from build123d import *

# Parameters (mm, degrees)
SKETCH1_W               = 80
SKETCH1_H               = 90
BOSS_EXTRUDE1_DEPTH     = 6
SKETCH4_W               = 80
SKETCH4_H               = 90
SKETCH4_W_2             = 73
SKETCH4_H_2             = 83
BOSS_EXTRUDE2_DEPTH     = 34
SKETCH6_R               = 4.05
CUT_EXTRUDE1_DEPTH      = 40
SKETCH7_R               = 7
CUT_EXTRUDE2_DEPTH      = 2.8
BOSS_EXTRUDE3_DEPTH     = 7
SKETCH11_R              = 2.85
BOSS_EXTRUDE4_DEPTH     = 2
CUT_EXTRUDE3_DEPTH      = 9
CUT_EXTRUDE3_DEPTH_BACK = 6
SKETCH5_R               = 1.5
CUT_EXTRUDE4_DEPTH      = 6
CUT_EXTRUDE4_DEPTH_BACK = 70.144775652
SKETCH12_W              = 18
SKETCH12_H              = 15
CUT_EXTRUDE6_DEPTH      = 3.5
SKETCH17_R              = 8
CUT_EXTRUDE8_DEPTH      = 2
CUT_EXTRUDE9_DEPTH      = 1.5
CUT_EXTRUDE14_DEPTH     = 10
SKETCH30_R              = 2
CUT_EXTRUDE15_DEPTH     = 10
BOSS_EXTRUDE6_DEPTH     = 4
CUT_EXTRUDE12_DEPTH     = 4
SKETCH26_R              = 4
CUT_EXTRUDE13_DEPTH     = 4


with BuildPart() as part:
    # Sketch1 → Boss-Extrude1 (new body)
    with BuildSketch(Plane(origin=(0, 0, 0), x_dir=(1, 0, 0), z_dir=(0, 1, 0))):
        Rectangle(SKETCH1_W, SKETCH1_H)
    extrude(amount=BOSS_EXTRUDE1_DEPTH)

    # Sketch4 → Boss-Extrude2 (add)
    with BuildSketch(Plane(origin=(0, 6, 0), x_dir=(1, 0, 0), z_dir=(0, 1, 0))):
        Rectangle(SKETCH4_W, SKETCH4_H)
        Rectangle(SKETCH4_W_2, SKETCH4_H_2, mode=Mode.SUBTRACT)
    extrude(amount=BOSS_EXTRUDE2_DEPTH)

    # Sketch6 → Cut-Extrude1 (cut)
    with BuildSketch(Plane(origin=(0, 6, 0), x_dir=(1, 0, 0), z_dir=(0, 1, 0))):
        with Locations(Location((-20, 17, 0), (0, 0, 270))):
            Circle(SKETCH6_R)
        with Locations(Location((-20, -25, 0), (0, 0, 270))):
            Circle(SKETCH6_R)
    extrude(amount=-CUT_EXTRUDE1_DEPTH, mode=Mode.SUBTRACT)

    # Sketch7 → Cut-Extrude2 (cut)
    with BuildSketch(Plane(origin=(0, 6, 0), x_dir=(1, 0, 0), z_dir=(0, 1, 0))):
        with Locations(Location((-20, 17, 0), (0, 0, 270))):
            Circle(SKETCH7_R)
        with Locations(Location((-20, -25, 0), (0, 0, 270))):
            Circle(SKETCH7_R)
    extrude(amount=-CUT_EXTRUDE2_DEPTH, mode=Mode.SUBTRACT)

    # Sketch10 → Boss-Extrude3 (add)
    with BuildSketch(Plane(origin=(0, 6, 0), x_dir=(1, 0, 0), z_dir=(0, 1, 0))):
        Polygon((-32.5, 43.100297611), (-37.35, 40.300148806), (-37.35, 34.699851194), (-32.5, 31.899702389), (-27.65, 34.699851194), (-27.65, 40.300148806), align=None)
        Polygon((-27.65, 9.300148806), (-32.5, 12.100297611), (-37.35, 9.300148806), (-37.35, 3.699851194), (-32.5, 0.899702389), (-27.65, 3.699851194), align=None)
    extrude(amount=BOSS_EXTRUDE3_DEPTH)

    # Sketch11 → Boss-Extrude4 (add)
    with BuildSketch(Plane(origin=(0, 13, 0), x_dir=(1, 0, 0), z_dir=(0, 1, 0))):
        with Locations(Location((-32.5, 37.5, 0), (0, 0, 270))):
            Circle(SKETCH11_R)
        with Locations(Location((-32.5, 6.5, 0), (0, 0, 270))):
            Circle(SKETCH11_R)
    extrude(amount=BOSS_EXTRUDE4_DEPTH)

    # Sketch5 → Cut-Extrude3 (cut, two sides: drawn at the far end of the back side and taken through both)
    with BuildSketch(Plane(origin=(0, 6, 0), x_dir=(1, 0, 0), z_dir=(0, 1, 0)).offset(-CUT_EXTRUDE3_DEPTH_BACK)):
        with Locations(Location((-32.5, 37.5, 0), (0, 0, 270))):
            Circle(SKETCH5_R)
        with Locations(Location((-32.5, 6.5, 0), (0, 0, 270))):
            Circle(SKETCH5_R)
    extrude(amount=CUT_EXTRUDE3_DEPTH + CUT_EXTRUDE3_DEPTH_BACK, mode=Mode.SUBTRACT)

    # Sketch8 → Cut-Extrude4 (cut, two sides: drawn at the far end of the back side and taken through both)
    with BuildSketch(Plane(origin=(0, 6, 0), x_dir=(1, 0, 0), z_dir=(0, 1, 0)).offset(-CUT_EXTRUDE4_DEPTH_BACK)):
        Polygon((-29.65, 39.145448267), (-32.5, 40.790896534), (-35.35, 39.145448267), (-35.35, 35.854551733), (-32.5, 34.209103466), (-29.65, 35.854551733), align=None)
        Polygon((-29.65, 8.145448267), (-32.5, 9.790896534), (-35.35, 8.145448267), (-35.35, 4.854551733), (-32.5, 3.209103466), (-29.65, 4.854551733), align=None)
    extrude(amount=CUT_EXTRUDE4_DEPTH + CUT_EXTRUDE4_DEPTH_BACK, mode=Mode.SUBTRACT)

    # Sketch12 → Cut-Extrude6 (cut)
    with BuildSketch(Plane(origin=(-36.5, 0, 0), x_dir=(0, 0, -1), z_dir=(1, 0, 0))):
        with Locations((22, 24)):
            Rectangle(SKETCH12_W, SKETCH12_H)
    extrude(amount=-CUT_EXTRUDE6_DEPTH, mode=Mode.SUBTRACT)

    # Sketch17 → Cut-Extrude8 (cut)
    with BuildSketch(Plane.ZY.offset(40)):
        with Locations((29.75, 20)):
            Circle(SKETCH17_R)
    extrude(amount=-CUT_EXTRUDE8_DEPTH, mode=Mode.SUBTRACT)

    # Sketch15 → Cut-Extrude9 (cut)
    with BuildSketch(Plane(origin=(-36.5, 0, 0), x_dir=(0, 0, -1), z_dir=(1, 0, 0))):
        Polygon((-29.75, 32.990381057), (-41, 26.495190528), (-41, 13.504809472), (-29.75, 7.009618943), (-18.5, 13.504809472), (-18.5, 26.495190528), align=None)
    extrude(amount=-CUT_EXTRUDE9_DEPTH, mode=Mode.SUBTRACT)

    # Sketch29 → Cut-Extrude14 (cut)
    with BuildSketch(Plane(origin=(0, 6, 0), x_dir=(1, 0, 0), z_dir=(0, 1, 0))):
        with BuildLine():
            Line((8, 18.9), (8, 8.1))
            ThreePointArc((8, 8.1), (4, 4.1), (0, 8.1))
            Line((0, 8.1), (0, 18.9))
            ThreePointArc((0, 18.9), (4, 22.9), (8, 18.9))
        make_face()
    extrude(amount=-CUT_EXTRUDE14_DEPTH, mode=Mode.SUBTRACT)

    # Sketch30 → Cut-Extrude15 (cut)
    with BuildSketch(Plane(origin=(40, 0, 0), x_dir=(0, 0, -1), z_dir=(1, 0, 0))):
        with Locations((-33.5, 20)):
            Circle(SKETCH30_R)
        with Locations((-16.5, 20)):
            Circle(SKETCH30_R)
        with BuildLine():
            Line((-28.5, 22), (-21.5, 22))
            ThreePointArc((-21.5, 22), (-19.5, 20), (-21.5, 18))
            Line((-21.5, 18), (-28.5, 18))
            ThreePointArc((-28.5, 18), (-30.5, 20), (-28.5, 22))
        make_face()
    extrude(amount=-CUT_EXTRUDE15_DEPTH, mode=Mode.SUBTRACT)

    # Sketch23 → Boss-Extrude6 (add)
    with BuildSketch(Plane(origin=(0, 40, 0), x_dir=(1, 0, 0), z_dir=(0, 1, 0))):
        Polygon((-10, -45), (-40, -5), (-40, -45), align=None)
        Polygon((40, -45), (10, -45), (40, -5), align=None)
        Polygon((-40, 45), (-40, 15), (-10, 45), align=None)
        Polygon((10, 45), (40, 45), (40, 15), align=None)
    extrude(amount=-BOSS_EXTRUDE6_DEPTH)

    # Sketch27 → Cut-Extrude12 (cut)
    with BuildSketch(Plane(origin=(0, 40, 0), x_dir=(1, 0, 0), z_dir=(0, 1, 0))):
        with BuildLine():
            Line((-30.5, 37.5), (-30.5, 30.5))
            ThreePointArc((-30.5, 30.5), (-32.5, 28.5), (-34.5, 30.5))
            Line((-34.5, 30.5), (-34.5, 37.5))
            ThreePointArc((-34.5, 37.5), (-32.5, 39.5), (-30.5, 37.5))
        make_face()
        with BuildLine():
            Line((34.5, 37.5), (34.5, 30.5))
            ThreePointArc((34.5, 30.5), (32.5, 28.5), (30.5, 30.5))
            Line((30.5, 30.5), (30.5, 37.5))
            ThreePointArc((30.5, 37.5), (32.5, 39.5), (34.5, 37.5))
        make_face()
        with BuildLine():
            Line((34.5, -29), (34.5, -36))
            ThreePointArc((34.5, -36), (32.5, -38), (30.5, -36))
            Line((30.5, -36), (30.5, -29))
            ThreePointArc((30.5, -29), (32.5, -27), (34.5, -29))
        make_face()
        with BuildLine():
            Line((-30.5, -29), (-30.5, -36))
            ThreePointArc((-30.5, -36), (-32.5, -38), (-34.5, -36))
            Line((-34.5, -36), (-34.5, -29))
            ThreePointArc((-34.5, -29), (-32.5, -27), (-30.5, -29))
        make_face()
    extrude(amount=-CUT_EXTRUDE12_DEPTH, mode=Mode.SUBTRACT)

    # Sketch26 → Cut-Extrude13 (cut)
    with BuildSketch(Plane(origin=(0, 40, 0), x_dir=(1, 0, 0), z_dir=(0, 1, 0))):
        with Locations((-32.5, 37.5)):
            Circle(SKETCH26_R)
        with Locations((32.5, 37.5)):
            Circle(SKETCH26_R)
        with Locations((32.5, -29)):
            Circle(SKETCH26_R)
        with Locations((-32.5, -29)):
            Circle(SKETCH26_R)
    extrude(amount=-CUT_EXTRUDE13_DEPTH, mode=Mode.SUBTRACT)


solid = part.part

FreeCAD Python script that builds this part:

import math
import FreeCAD as App
import Part
import Sketcher

V = App.Vector
Q = App.Units.Quantity

doc = App.newDocument("Part")
body = doc.addObject("PartDesign::Body", "Body")

# Sketch on XZ plane
sketch1 = body.newObject("Sketcher::SketchObject", "Sketch")
sketch1.AttachmentSupport = (doc.getObject("XZ_Plane"), [""])
sketch1.MapMode = "FlatFace"
sketch1.addGeometry(Part.LineSegment(V(-40, -45, 0), V(-40, 45, 0)), False)
sketch1.addGeometry(Part.LineSegment(V(-40, 45, 0), V(40, 45, 0)), False)
sketch1.addGeometry(Part.LineSegment(V(40, 45, 0), V(40, -45, 0)), False)
sketch1.addGeometry(Part.LineSegment(V(40, -45, 0), V(-40, -45, 0)), False)
sketch1.addConstraint(Sketcher.Constraint("Coincident", 0, 2, 1, 1))
sketch1.addConstraint(Sketcher.Constraint("Coincident", 1, 2, 2, 1))
sketch1.addConstraint(Sketcher.Constraint("Coincident", 2, 2, 3, 1))
sketch1.addConstraint(Sketcher.Constraint("Coincident", 3, 2, 0, 1))
sketch1.addConstraint(Sketcher.Constraint("Vertical", 0))
sketch1.addConstraint(Sketcher.Constraint("Horizontal", 1))
sketch1.addConstraint(Sketcher.Constraint("Vertical", 2))
sketch1.addConstraint(Sketcher.Constraint("Horizontal", 3))
sketch1.addConstraint(Sketcher.Constraint("Symmetric", 0, 2, 2, 2, -1, 1))
sketch1.addConstraint(Sketcher.Constraint("DistanceX", 1, 1, 1, 2, 80.0))
sketch1.addConstraint(Sketcher.Constraint("DistanceY", 0, 1, 0, 2, 90.0))
pad1 = body.newObject("PartDesign::Pad", "Pad")
pad1.Profile = sketch1
pad1.Length = 6
pad1.Reversed = True

# Sketch on XZ plane
sketch2 = body.newObject("Sketcher::SketchObject", "Sketch001")
sketch2.AttachmentSupport = (doc.getObject("XZ_Plane"), [""])
sketch2.MapMode = "FlatFace"
sketch2.AttachmentOffset = App.Placement(V(0, 0, -6), App.Rotation())
sketch2.addGeometry(Part.LineSegment(V(-40, -45, 0), V(-40, 45, 0)), False)
sketch2.addGeometry(Part.LineSegment(V(-40, 45, 0), V(40, 45, 0)), False)
sketch2.addGeometry(Part.LineSegment(V(40, 45, 0), V(40, -45, 0)), False)
sketch2.addGeometry(Part.LineSegment(V(40, -45, 0), V(-40, -45, 0)), False)
sketch2.addGeometry(Part.LineSegment(V(36.5, 41.5, 0), V(-36.5, 41.5, 0)), False)
sketch2.addGeometry(Part.LineSegment(V(-36.5, 41.5, 0), V(-36.5, -41.5, 0)), False)
sketch2.addGeometry(Part.LineSegment(V(-36.5, -41.5, 0), V(36.5, -41.5, 0)), False)
sketch2.addGeometry(Part.LineSegment(V(36.5, -41.5, 0), V(36.5, 41.5, 0)), False)
sketch2.addConstraint(Sketcher.Constraint("Coincident", 0, 2, 1, 1))
sketch2.addConstraint(Sketcher.Constraint("Coincident", 1, 2, 2, 1))
sketch2.addConstraint(Sketcher.Constraint("Coincident", 2, 2, 3, 1))
sketch2.addConstraint(Sketcher.Constraint("Coincident", 3, 2, 0, 1))
sketch2.addConstraint(Sketcher.Constraint("Coincident", 4, 2, 5, 1))
sketch2.addConstraint(Sketcher.Constraint("Coincident", 5, 2, 6, 1))
sketch2.addConstraint(Sketcher.Constraint("Coincident", 6, 2, 7, 1))
sketch2.addConstraint(Sketcher.Constraint("Coincident", 7, 2, 4, 1))
sketch2.addConstraint(Sketcher.Constraint("Vertical", 0))
sketch2.addConstraint(Sketcher.Constraint("Horizontal", 1))
sketch2.addConstraint(Sketcher.Constraint("Vertical", 2))
sketch2.addConstraint(Sketcher.Constraint("Horizontal", 3))
sketch2.addConstraint(Sketcher.Constraint("Horizontal", 4))
sketch2.addConstraint(Sketcher.Constraint("Vertical", 5))
sketch2.addConstraint(Sketcher.Constraint("Horizontal", 6))
sketch2.addConstraint(Sketcher.Constraint("Vertical", 7))
sketch2.addConstraint(Sketcher.Constraint("Symmetric", 0, 2, 2, 2, -1, 1))
sketch2.addConstraint(Sketcher.Constraint("Symmetric", 4, 2, 6, 2, -1, 1))
sketch2.addConstraint(Sketcher.Constraint("DistanceX", 1, 1, 1, 2, 80.0))
sketch2.addConstraint(Sketcher.Constraint("DistanceX", 4, 2, 4, 1, 73.0))
sketch2.addConstraint(Sketcher.Constraint("DistanceY", 0, 1, 0, 2, 90.0))
sketch2.addConstraint(Sketcher.Constraint("DistanceY", 5, 2, 5, 1, 83.0))
pad2 = body.newObject("PartDesign::Pad", "Pad001")
pad2.Profile = sketch2
pad2.Length = 34
pad2.Reversed = True

# Sketch on XZ plane
sketch3 = body.newObject("Sketcher::SketchObject", "Sketch002")
sketch3.AttachmentSupport = (doc.getObject("XZ_Plane"), [""])
sketch3.MapMode = "FlatFace"
sketch3.AttachmentOffset = App.Placement(V(0, 0, -6), App.Rotation())
sketch3.addGeometry(Part.Circle(V(-20, -17, 0), V(0, 0, 1), 4.05), False)
sketch3.addGeometry(Part.Circle(V(-20, 25, 0), V(0, 0, 1), 4.05), False)
sketch3.addConstraint(Sketcher.Constraint("Equal", 0, 1))
sketch3.addConstraint(Sketcher.Constraint("Vertical", 0, 3, 1, 3))
sketch3.addConstraint(Sketcher.Constraint("Diameter", 0, 8.1))
sketch3.addConstraint(Sketcher.Constraint("DistanceX", 0, 3, -1, 1, 20.0))
sketch3.addConstraint(Sketcher.Constraint("DistanceY", 0, 3, -1, 1, 17.0))
sketch3.addConstraint(Sketcher.Constraint("DistanceY", -1, 1, 1, 3, 25.0))
pocket1 = body.newObject("PartDesign::Pocket", "Pocket")
pocket1.Profile = sketch3
pocket1.Length = 40
pocket1.Reversed = True

# Sketch on XZ plane
sketch4 = body.newObject("Sketcher::SketchObject", "Sketch003")
sketch4.AttachmentSupport = (doc.getObject("XZ_Plane"), [""])
sketch4.MapMode = "FlatFace"
sketch4.AttachmentOffset = App.Placement(V(0, 0, -6), App.Rotation())
sketch4.addGeometry(Part.Circle(V(-20, -17, 0), V(0, 0, 1), 7), False)
sketch4.addGeometry(Part.Circle(V(-20, 25, 0), V(0, 0, 1), 7), False)
sketch4.addConstraint(Sketcher.Constraint("Equal", 0, 1))
sketch4.addConstraint(Sketcher.Constraint("Vertical", 0, 3, 1, 3))
sketch4.addConstraint(Sketcher.Constraint("Diameter", 0, 14.0))
sketch4.addConstraint(Sketcher.Constraint("DistanceX", 0, 3, -1, 1, 20.0))
sketch4.addConstraint(Sketcher.Constraint("DistanceY", 0, 3, -1, 1, 17.0))
sketch4.addConstraint(Sketcher.Constraint("DistanceY", -1, 1, 1, 3, 25.0))
pocket2 = body.newObject("PartDesign::Pocket", "Pocket001")
pocket2.Profile = sketch4
pocket2.Length = 2.8
pocket2.Reversed = True

# Sketch on XZ plane
sketch5 = body.newObject("Sketcher::SketchObject", "Sketch004")
sketch5.AttachmentSupport = (doc.getObject("XZ_Plane"), [""])
sketch5.MapMode = "FlatFace"
sketch5.AttachmentOffset = App.Placement(V(0, 0, -6), App.Rotation())
sketch5.addGeometry(Part.LineSegment(V(-32.5, -43.100298, 0), V(-37.35, -40.300149, 0)), False)
sketch5.addGeometry(Part.LineSegment(V(-37.35, -40.300149, 0), V(-37.35, -34.699851, 0)), False)
sketch5.addGeometry(Part.LineSegment(V(-37.35, -34.699851, 0), V(-32.5, -31.899702, 0)), False)
sketch5.addGeometry(Part.LineSegment(V(-32.5, -31.899702, 0), V(-27.65, -34.699851, 0)), False)
sketch5.addGeometry(Part.LineSegment(V(-27.65, -34.699851, 0), V(-27.65, -40.300149, 0)), False)
sketch5.addGeometry(Part.LineSegment(V(-27.65, -40.300149, 0), V(-32.5, -43.100298, 0)), False)
sketch5.addGeometry(Part.LineSegment(V(-27.65, -9.300149, 0), V(-32.5, -12.100298, 0)), False)
sketch5.addGeometry(Part.LineSegment(V(-32.5, -12.100298, 0), V(-37.35, -9.300149, 0)), False)
sketch5.addGeometry(Part.LineSegment(V(-37.35, -9.300149, 0), V(-37.35, -3.699851, 0)), False)
sketch5.addGeometry(Part.LineSegment(V(-37.35, -3.699851, 0), V(-32.5, -0.899702, 0)), False)
sketch5.addGeometry(Part.LineSegment(V(-32.5, -0.899702, 0), V(-27.65, -3.699851, 0)), False)
sketch5.addGeometry(Part.LineSegment(V(-27.65, -3.699851, 0), V(-27.65, -9.300149, 0)), False)
sketch5.addConstraint(Sketcher.Constraint("Coincident", 0, 2, 1, 1))
sketch5.addConstraint(Sketcher.Constraint("Coincident", 1, 2, 2, 1))
sketch5.addConstraint(Sketcher.Constraint("Coincident", 2, 2, 3, 1))
sketch5.addConstraint(Sketcher.Constraint("Coincident", 3, 2, 4, 1))
sketch5.addConstraint(Sketcher.Constraint("Coincident", 4, 2, 5, 1))
sketch5.addConstraint(Sketcher.Constraint("Coincident", 5, 2, 0, 1))
sketch5.addConstraint(Sketcher.Constraint("Coincident", 6, 2, 7, 1))
sketch5.addConstraint(Sketcher.Constraint("Coincident", 7, 2, 8, 1))
sketch5.addConstraint(Sketcher.Constraint("Coincident", 8, 2, 9, 1))
sketch5.addConstraint(Sketcher.Constraint("Coincident", 9, 2, 10, 1))
sketch5.addConstraint(Sketcher.Constraint("Coincident", 10, 2, 11, 1))
sketch5.addConstraint(Sketcher.Constraint("Coincident", 11, 2, 6, 1))
sketch5.addConstraint(Sketcher.Constraint("Vertical", 1))
sketch5.addConstraint(Sketcher.Constraint("Vertical", 4))
sketch5.addConstraint(Sketcher.Constraint("Vertical", 8))
sketch5.addConstraint(Sketcher.Constraint("Vertical", 11))
sketch5.addConstraint(Sketcher.Constraint("Parallel", 0, 3))
sketch5.addConstraint(Sketcher.Constraint("Parallel", 2, 5))
sketch5.addConstraint(Sketcher.Constraint("Parallel", 5, 6))
sketch5.addConstraint(Sketcher.Constraint("Parallel", 3, 7))
sketch5.addConstraint(Sketcher.Constraint("Parallel", 6, 9))
sketch5.addConstraint(Sketcher.Constraint("Parallel", 7, 10))
sketch5.addConstraint(Sketcher.Constraint("Horizontal", 1, 2, 3, 2))
sketch5.addConstraint(Sketcher.Constraint("Horizontal", 0, 2, 4, 2))
sketch5.addConstraint(Sketcher.Constraint("Horizontal", 8, 2, 10, 2))
sketch5.addConstraint(Sketcher.Constraint("Horizontal", 7, 2, 11, 2))
sketch5.addConstraint(Sketcher.Constraint("Vertical", 2, 2, 5, 2))
sketch5.addConstraint(Sketcher.Constraint("Vertical", 5, 2, 6, 2))
sketch5.addConstraint(Sketcher.Constraint("Vertical", 1, 2, 7, 2))
sketch5.addConstraint(Sketcher.Constraint("Equal", 4, 8))
sketch5.addConstraint(Sketcher.Constraint("Angle", 0, Q("150 deg")))
sketch5.addConstraint(Sketcher.Constraint("DistanceY", 0, 2, 7, 2, 31.0))
sketch5.addConstraint(Sketcher.Constraint("DistanceX", 2, 2, -1, 1, 32.5))
sketch5.addConstraint(Sketcher.Constraint("DistanceX", 1, 2, 3, 2, 9.7))
sketch5.addConstraint(Sketcher.Constraint("DistanceY", 1, 1, 1, 2, 5.600298))
sketch5.addConstraint(Sketcher.Constraint("DistanceY", 0, 2, -1, 1, 40.300149))
pad3 = body.newObject("PartDesign::Pad", "Pad002")
pad3.Profile = sketch5
pad3.Length = 7
pad3.Reversed = True

# Sketch on XZ plane
sketch6 = body.newObject("Sketcher::SketchObject", "Sketch005")
sketch6.AttachmentSupport = (doc.getObject("XZ_Plane"), [""])
sketch6.MapMode = "FlatFace"
sketch6.AttachmentOffset = App.Placement(V(0, 0, -13), App.Rotation())
sketch6.addGeometry(Part.Circle(V(-32.5, -37.5, 0), V(0, 0, 1), 2.85), False)
sketch6.addGeometry(Part.Circle(V(-32.5, -6.5, 0), V(0, 0, 1), 2.85), False)
sketch6.addConstraint(Sketcher.Constraint("Equal", 0, 1))
sketch6.addConstraint(Sketcher.Constraint("Vertical", 0, 3, 1, 3))
sketch6.addConstraint(Sketcher.Constraint("Diameter", 0, 5.7))
sketch6.addConstraint(Sketcher.Constraint("DistanceY", 0, 3, 1, 3, 31.0))
sketch6.addConstraint(Sketcher.Constraint("DistanceX", 0, 3, -1, 1, 32.5))
sketch6.addConstraint(Sketcher.Constraint("DistanceY", 0, 3, -1, 1, 37.5))
pad4 = body.newObject("PartDesign::Pad", "Pad003")
pad4.Profile = sketch6
pad4.Length = 2
pad4.Reversed = True

# Sketch on XZ plane
sketch7 = body.newObject("Sketcher::SketchObject", "Sketch006")
sketch7.AttachmentSupport = (doc.getObject("XZ_Plane"), [""])
sketch7.MapMode = "FlatFace"
sketch7.AttachmentOffset = App.Placement(V(0, 0, -6), App.Rotation())
sketch7.addGeometry(Part.Circle(V(-32.5, -37.5, 0), V(0, 0, 1), 1.5), False)
sketch7.addGeometry(Part.Circle(V(-32.5, -6.5, 0), V(0, 0, 1), 1.5), False)
sketch7.addConstraint(Sketcher.Constraint("Equal", 0, 1))
sketch7.addConstraint(Sketcher.Constraint("Vertical", 0, 3, 1, 3))
sketch7.addConstraint(Sketcher.Constraint("Diameter", 0, 3.0))
sketch7.addConstraint(Sketcher.Constraint("DistanceY", 0, 3, 1, 3, 31.0))
sketch7.addConstraint(Sketcher.Constraint("DistanceX", 0, 3, -1, 1, 32.5))
sketch7.addConstraint(Sketcher.Constraint("DistanceY", 0, 3, -1, 1, 37.5))
pocket3 = body.newObject("PartDesign::Pocket", "Pocket002")
pocket3.Profile = sketch7
pocket3.Type = "ThroughAll"
pocket3.Midplane = True

# Sketch on XZ plane
sketch8 = body.newObject("Sketcher::SketchObject", "Sketch007")
sketch8.AttachmentSupport = (doc.getObject("XZ_Plane"), [""])
sketch8.MapMode = "FlatFace"
sketch8.AttachmentOffset = App.Placement(V(0, 0, -6), App.Rotation())
sketch8.addGeometry(Part.LineSegment(V(-29.65, -39.145448, 0), V(-32.5, -40.790897, 0)), False)
sketch8.addGeometry(Part.LineSegment(V(-32.5, -40.790897, 0), V(-35.35, -39.145448, 0)), False)
sketch8.addGeometry(Part.LineSegment(V(-35.35, -39.145448, 0), V(-35.35, -35.854552, 0)), False)
sketch8.addGeometry(Part.LineSegment(V(-35.35, -35.854552, 0), V(-32.5, -34.209103, 0)), False)
sketch8.addGeometry(Part.LineSegment(V(-32.5, -34.209103, 0), V(-29.65, -35.854552, 0)), False)
sketch8.addGeometry(Part.LineSegment(V(-29.65, -35.854552, 0), V(-29.65, -39.145448, 0)), False)
sketch8.addGeometry(Part.LineSegment(V(-29.65, -8.145448, 0), V(-32.5, -9.790897, 0)), False)
sketch8.addGeometry(Part.LineSegment(V(-32.5, -9.790897, 0), V(-35.35, -8.145448, 0)), False)
sketch8.addGeometry(Part.LineSegment(V(-35.35, -8.145448, 0), V(-35.35, -4.854552, 0)), False)
sketch8.addGeometry(Part.LineSegment(V(-35.35, -4.854552, 0), V(-32.5, -3.209103, 0)), False)
sketch8.addGeometry(Part.LineSegment(V(-32.5, -3.209103, 0), V(-29.65, -4.854552, 0)), False)
sketch8.addGeometry(Part.LineSegment(V(-29.65, -4.854552, 0), V(-29.65, -8.145448, 0)), False)
sketch8.addConstraint(Sketcher.Constraint("Coincident", 0, 2, 1, 1))
sketch8.addConstraint(Sketcher.Constraint("Coincident", 1, 2, 2, 1))
sketch8.addConstraint(Sketcher.Constraint("Coincident", 2, 2, 3, 1))
sketch8.addConstraint(Sketcher.Constraint("Coincident", 3, 2, 4, 1))
sketch8.addConstraint(Sketcher.Constraint("Coincident", 4, 2, 5, 1))
sketch8.addConstraint(Sketcher.Constraint("Coincident", 5, 2, 0, 1))
sketch8.addConstraint(Sketcher.Constraint("Coincident", 6, 2, 7, 1))
sketch8.addConstraint(Sketcher.Constraint("Coincident", 7, 2, 8, 1))
sketch8.addConstraint(Sketcher.Constraint("Coincident", 8, 2, 9, 1))
sketch8.addConstraint(Sketcher.Constraint("Coincident", 9, 2, 10, 1))
sketch8.addConstraint(Sketcher.Constraint("Coincident", 10, 2, 11, 1))
sketch8.addConstraint(Sketcher.Constraint("Coincident", 11, 2, 6, 1))
sketch8.addConstraint(Sketcher.Constraint("Vertical", 2))
sketch8.addConstraint(Sketcher.Constraint("Vertical", 5))
sketch8.addConstraint(Sketcher.Constraint("Vertical", 8))
sketch8.addConstraint(Sketcher.Constraint("Vertical", 11))
sketch8.addConstraint(Sketcher.Constraint("Parallel", 0, 3))
sketch8.addConstraint(Sketcher.Constraint("Parallel", 1, 4))
sketch8.addConstraint(Sketcher.Constraint("Parallel", 3, 6))
sketch8.addConstraint(Sketcher.Constraint("Parallel", 4, 7))
sketch8.addConstraint(Sketcher.Constraint("Parallel", 6, 9))
sketch8.addConstraint(Sketcher.Constraint("Parallel", 7, 10))
sketch8.addConstraint(Sketcher.Constraint("Horizontal", 2, 2, 4, 2))
sketch8.addConstraint(Sketcher.Constraint("Horizontal", 1, 2, 5, 2))
sketch8.addConstraint(Sketcher.Constraint("Horizontal", 8, 2, 10, 2))
sketch8.addConstraint(Sketcher.Constraint("Horizontal", 7, 2, 11, 2))
sketch8.addConstraint(Sketcher.Constraint("Vertical", 0, 2, 3, 2))
sketch8.addConstraint(Sketcher.Constraint("Vertical", 3, 2, 6, 2))
sketch8.addConstraint(Sketcher.Constraint("Vertical", 2, 2, 7, 2))
sketch8.addConstraint(Sketcher.Constraint("Equal", 5, 8))
sketch8.addConstraint(Sketcher.Constraint("Angle", 0, Q("-150 deg")))
sketch8.addConstraint(Sketcher.Constraint("DistanceY", 1, 2, 7, 2, 31.0))
sketch8.addConstraint(Sketcher.Constraint("DistanceX", 0, 2, -1, 1, 32.5))
sketch8.addConstraint(Sketcher.Constraint("DistanceX", 2, 2, 4, 2, 5.7))
sketch8.addConstraint(Sketcher.Constraint("DistanceY", 2, 1, 2, 2, 3.290897))
sketch8.addConstraint(Sketcher.Constraint("DistanceY", 1, 2, -1, 1, 39.145448))
pocket4 = body.newObject("PartDesign::Pocket", "Pocket003")
pocket4.Profile = sketch8
pocket4.Type = "TwoLengths"
pocket4.Length = 6
pocket4.Length2 = 70.144776

# Sketch on YZ plane
sketch9 = body.newObject("Sketcher::SketchObject", "Sketch008")
sketch9.AttachmentSupport = (doc.getObject("YZ_Plane"), [""])
sketch9.MapMode = "FlatFace"
sketch9.AttachmentOffset = App.Placement(V(0, 0, -36.5), App.Rotation())
sketch9.addGeometry(Part.LineSegment(V(31.5, -13, 0), V(16.5, -13, 0)), False)
sketch9.addGeometry(Part.LineSegment(V(16.5, -13, 0), V(16.5, -31, 0)), False)
sketch9.addGeometry(Part.LineSegment(V(16.5, -31, 0), V(31.5, -31, 0)), False)
sketch9.addGeometry(Part.LineSegment(V(31.5, -31, 0), V(31.5, -13, 0)), False)
sketch9.addConstraint(Sketcher.Constraint("Coincident", 0, 2, 1, 1))
sketch9.addConstraint(Sketcher.Constraint("Coincident", 1, 2, 2, 1))
sketch9.addConstraint(Sketcher.Constraint("Coincident", 2, 2, 3, 1))
sketch9.addConstraint(Sketcher.Constraint("Coincident", 3, 2, 0, 1))
sketch9.addConstraint(Sketcher.Constraint("Horizontal", 0))
sketch9.addConstraint(Sketcher.Constraint("Vertical", 1))
sketch9.addConstraint(Sketcher.Constraint("Horizontal", 2))
sketch9.addConstraint(Sketcher.Constraint("Vertical", 3))
sketch9.addConstraint(Sketcher.Constraint("DistanceX", 0, 2, 0, 1, 15.0))
sketch9.addConstraint(Sketcher.Constraint("DistanceY", 1, 2, 1, 1, 18.0))
sketch9.addConstraint(Sketcher.Constraint("DistanceY", 0, 2, -1, 1, 13.0))
sketch9.addConstraint(Sketcher.Constraint("DistanceX", -1, 1, 0, 2, 16.5))
pocket5 = body.newObject("PartDesign::Pocket", "Pocket004")
pocket5.Profile = sketch9
pocket5.Length = 3.5

# Sketch on YZ plane
sketch10 = body.newObject("Sketcher::SketchObject", "Sketch009")
sketch10.AttachmentSupport = (doc.getObject("YZ_Plane"), [""])
sketch10.MapMode = "FlatFace"
sketch10.AttachmentOffset = App.Placement(V(0, 0, -40), App.Rotation())
sketch10.addGeometry(Part.Circle(V(20, 29.75, 0), V(0, 0, 1), 8), False)
sketch10.addConstraint(Sketcher.Constraint("Diameter", 0, 16.0))
sketch10.addConstraint(Sketcher.Constraint("DistanceX", -1, 1, 0, 3, 20.0))
sketch10.addConstraint(Sketcher.Constraint("DistanceY", -1, 1, 0, 3, 29.75))
pocket6 = body.newObject("PartDesign::Pocket", "Pocket005")
pocket6.Profile = sketch10
pocket6.Length = 2
pocket6.Reversed = True

# Sketch on YZ plane
sketch11 = body.newObject("Sketcher::SketchObject", "Sketch010")
sketch11.AttachmentSupport = (doc.getObject("YZ_Plane"), [""])
sketch11.MapMode = "FlatFace"
sketch11.AttachmentOffset = App.Placement(V(0, 0, -36.5), App.Rotation())
sketch11.addGeometry(Part.LineSegment(V(32.990381, 29.75, 0), V(26.495191, 41, 0)), False)
sketch11.addGeometry(Part.LineSegment(V(26.495191, 41, 0), V(13.504809, 41, 0)), False)
sketch11.addGeometry(Part.LineSegment(V(13.504809, 41, 0), V(7.009619, 29.75, 0)), False)
sketch11.addGeometry(Part.LineSegment(V(7.009619, 29.75, 0), V(13.504809, 18.5, 0)), False)
sketch11.addGeometry(Part.LineSegment(V(13.504809, 18.5, 0), V(26.495191, 18.5, 0)), False)
sketch11.addGeometry(Part.LineSegment(V(26.495191, 18.5, 0), V(32.990381, 29.75, 0)), False)
sketch11.addConstraint(Sketcher.Constraint("Coincident", 0, 2, 1, 1))
sketch11.addConstraint(Sketcher.Constraint("Coincident", 1, 2, 2, 1))
sketch11.addConstraint(Sketcher.Constraint("Coincident", 2, 2, 3, 1))
sketch11.addConstraint(Sketcher.Constraint("Coincident", 3, 2, 4, 1))
sketch11.addConstraint(Sketcher.Constraint("Coincident", 4, 2, 5, 1))
sketch11.addConstraint(Sketcher.Constraint("Coincident", 5, 2, 0, 1))
sketch11.addConstraint(Sketcher.Constraint("Horizontal", 1))
sketch11.addConstraint(Sketcher.Constraint("Horizontal", 4))
sketch11.addConstraint(Sketcher.Constraint("Parallel", 0, 3))
sketch11.addConstraint(Sketcher.Constraint("Parallel", 2, 5))
sketch11.addConstraint(Sketcher.Constraint("Horizontal", 2, 2, 5, 2))
sketch11.addConstraint(Sketcher.Constraint("Vertical", 1, 2, 3, 2))
sketch11.addConstraint(Sketcher.Constraint("Vertical", 0, 2, 4, 2))
sketch11.addConstraint(Sketcher.Constraint("Angle", 0, Q("120 deg")))
sketch11.addConstraint(Sketcher.Constraint("DistanceY", -1, 1, 0, 2, 41.0))
sketch11.addConstraint(Sketcher.Constraint("DistanceY", -1, 1, 3, 2, 18.5))
sketch11.addConstraint(Sketcher.Constraint("DistanceX", 1, 2, 1, 1, 12.990381))
sketch11.addConstraint(Sketcher.Constraint("DistanceX", -1, 1, 0, 2, 26.495191))
pocket7 = body.newObject("PartDesign::Pocket", "Pocket006")
pocket7.Profile = sketch11
pocket7.Length = 1.5

# Sketch on XZ plane
sketch12 = body.newObject("Sketcher::SketchObject", "Sketch011")
sketch12.AttachmentSupport = (doc.getObject("XZ_Plane"), [""])
sketch12.MapMode = "FlatFace"
sketch12.AttachmentOffset = App.Placement(V(0, 0, -6), App.Rotation())
sketch12.addGeometry(Part.LineSegment(V(8, -8.1, 0), V(8, -18.9, 0)), False)
sketch12.addGeometry(Part.ArcOfCircle(Part.Circle(V(4, -18.9, 0), V(0, 0, 1), 4), math.radians(180), math.radians(360)), False)
sketch12.addGeometry(Part.LineSegment(V(0, -18.9, 0), V(0, -8.1, 0)), False)
sketch12.addGeometry(Part.ArcOfCircle(Part.Circle(V(4, -8.1, 0), V(0, 0, 1), 4), math.radians(0), math.radians(180)), False)
sketch12.addConstraint(Sketcher.Constraint("Tangent", 0, 2, 1, 2))
sketch12.addConstraint(Sketcher.Constraint("Tangent", 1, 1, 2, 1))
sketch12.addConstraint(Sketcher.Constraint("Tangent", 2, 2, 3, 2))
sketch12.addConstraint(Sketcher.Constraint("Tangent", 3, 1, 0, 1))
sketch12.addConstraint(Sketcher.Constraint("Vertical", 0))
sketch12.addConstraint(Sketcher.Constraint("Vertical", 2))
sketch12.addConstraint(Sketcher.Constraint("PointOnObject", 1, 1, -2))
sketch12.addConstraint(Sketcher.Constraint("Radius", 1, 4.0))
sketch12.addConstraint(Sketcher.Constraint("DistanceY", 0, 2, 0, 1, 10.8))
sketch12.addConstraint(Sketcher.Constraint("DistanceY", 1, 3, -1, 1, 18.9))
pocket8 = body.newObject("PartDesign::Pocket", "Pocket007")
pocket8.Profile = sketch12
pocket8.Length = 10
pocket8.Reversed = True

# Sketch on YZ plane
sketch13 = body.newObject("Sketcher::SketchObject", "Sketch012")
sketch13.AttachmentSupport = (doc.getObject("YZ_Plane"), [""])
sketch13.MapMode = "FlatFace"
sketch13.AttachmentOffset = App.Placement(V(0, 0, 40), App.Rotation())
sketch13.addGeometry(Part.Circle(V(20, 33.5, 0), V(0, 0, 1), 2), False)
sketch13.addGeometry(Part.Circle(V(20, 16.5, 0), V(0, 0, 1), 2), False)
sketch13.addGeometry(Part.LineSegment(V(22, 21.5, 0), V(22, 28.5, 0)), False)
sketch13.addGeometry(Part.ArcOfCircle(Part.Circle(V(20, 28.5, 0), V(0, 0, 1), 2), math.radians(0), math.radians(180)), False)
sketch13.addGeometry(Part.LineSegment(V(18, 28.5, 0), V(18, 21.5, 0)), False)
sketch13.addGeometry(Part.ArcOfCircle(Part.Circle(V(20, 21.5, 0), V(0, 0, 1), 2), math.radians(180), math.radians(360)), False)
sketch13.addConstraint(Sketcher.Constraint("Tangent", 2, 2, 3, 1))
sketch13.addConstraint(Sketcher.Constraint("Tangent", 3, 2, 4, 1))
sketch13.addConstraint(Sketcher.Constraint("Tangent", 4, 2, 5, 1))
sketch13.addConstraint(Sketcher.Constraint("Tangent", 5, 2, 2, 1))
sketch13.addConstraint(Sketcher.Constraint("Vertical", 2))
sketch13.addConstraint(Sketcher.Constraint("Vertical", 4))
sketch13.addConstraint(Sketcher.Constraint("Equal", 0, 1))
sketch13.addConstraint(Sketcher.Constraint("Equal", 1, 3))
sketch13.addConstraint(Sketcher.Constraint("Vertical", 0, 3, 1, 3))
sketch13.addConstraint(Sketcher.Constraint("Vertical", 1, 3, 3, 3))
sketch13.addConstraint(Sketcher.Constraint("Diameter", 0, 4.0))
sketch13.addConstraint(Sketcher.Constraint("DistanceY", 2, 1, 2, 2, 7.0))
sketch13.addConstraint(Sketcher.Constraint("DistanceX", -1, 1, 0, 3, 20.0))
sketch13.addConstraint(Sketcher.Constraint("DistanceY", 1, 3, 0, 3, 17.0))
sketch13.addConstraint(Sketcher.Constraint("DistanceY", 3, 3, 0, 3, 5.0))
sketch13.addConstraint(Sketcher.Constraint("DistanceY", -1, 1, 0, 3, 33.5))
pocket9 = body.newObject("PartDesign::Pocket", "Pocket008")
pocket9.Profile = sketch13
pocket9.Length = 10

# Sketch on XZ plane
sketch14 = body.newObject("Sketcher::SketchObject", "Sketch013")
sketch14.AttachmentSupport = (doc.getObject("XZ_Plane"), [""])
sketch14.MapMode = "FlatFace"
sketch14.AttachmentOffset = App.Placement(V(0, 0, -40), App.Rotation())
sketch14.addGeometry(Part.LineSegment(V(-10, 45, 0), V(-40, 5, 0)), False)
sketch14.addGeometry(Part.LineSegment(V(-40, 5, 0), V(-40, 45, 0)), False)
sketch14.addGeometry(Part.LineSegment(V(-40, 45, 0), V(-10, 45, 0)), False)
sketch14.addGeometry(Part.LineSegment(V(10, 45, 0), V(40, 45, 0)), False)
sketch14.addGeometry(Part.LineSegment(V(40, 45, 0), V(40, 5, 0)), False)
sketch14.addGeometry(Part.LineSegment(V(40, 5, 0), V(10, 45, 0)), False)
sketch14.addGeometry(Part.LineSegment(V(-40, -45, 0), V(-40, -15, 0)), False)
sketch14.addGeometry(Part.LineSegment(V(-40, -15, 0), V(-10, -45, 0)), False)
sketch14.addGeometry(Part.LineSegment(V(-10, -45, 0), V(-40, -45, 0)), False)
sketch14.addGeometry(Part.LineSegment(V(40, -45, 0), V(10, -45, 0)), False)
sketch14.addGeometry(Part.LineSegment(V(10, -45, 0), V(40, -15, 0)), False)
sketch14.addGeometry(Part.LineSegment(V(40, -15, 0), V(40, -45, 0)), False)
sketch14.addConstraint(Sketcher.Constraint("Coincident", 0, 2, 1, 1))
sketch14.addConstraint(Sketcher.Constraint("Coincident", 1, 2, 2, 1))
sketch14.addConstraint(Sketcher.Constraint("Coincident", 2, 2, 0, 1))
sketch14.addConstraint(Sketcher.Constraint("Coincident", 3, 2, 4, 1))
sketch14.addConstraint(Sketcher.Constraint("Coincident", 4, 2, 5, 1))
sketch14.addConstraint(Sketcher.Constraint("Coincident", 5, 2, 3, 1))
sketch14.addConstraint(Sketcher.Constraint("Coincident", 6, 2, 7, 1))
sketch14.addConstraint(Sketcher.Constraint("Coincident", 7, 2, 8, 1))
sketch14.addConstraint(Sketcher.Constraint("Coincident", 8, 2, 6, 1))
sketch14.addConstraint(Sketcher.Constraint("Coincident", 9, 2, 10, 1))
sketch14.addConstraint(Sketcher.Constraint("Coincident", 10, 2, 11, 1))
sketch14.addConstraint(Sketcher.Constraint("Coincident", 11, 2, 9, 1))
sketch14.addConstraint(Sketcher.Constraint("Vertical", 1))
sketch14.addConstraint(Sketcher.Constraint("Horizontal", 2))
sketch14.addConstraint(Sketcher.Constraint("Horizontal", 3))
sketch14.addConstraint(Sketcher.Constraint("Vertical", 4))
sketch14.addConstraint(Sketcher.Constraint("Vertical", 6))
sketch14.addConstraint(Sketcher.Constraint("Horizontal", 8))
sketch14.addConstraint(Sketcher.Constraint("Horizontal", 9))
sketch14.addConstraint(Sketcher.Constraint("Vertical", 11))
sketch14.addConstraint(Sketcher.Constraint("Symmetric", 5, 2, 7, 2, -1, 1))
sketch14.addConstraint(Sketcher.Constraint("Symmetric", 2, 2, 9, 2, -1, 1))
sketch14.addConstraint(Sketcher.Constraint("Symmetric", 1, 2, 3, 2, -2))
sketch14.addConstraint(Sketcher.Constraint("Symmetric", 6, 2, 10, 2, -2))
sketch14.addConstraint(Sketcher.Constraint("Perpendicular", 7, 10))
sketch14.addConstraint(Sketcher.Constraint("Horizontal", 0, 2, 4, 2))
sketch14.addConstraint(Sketcher.Constraint("Vertical", 1, 2, 6, 2))
sketch14.addConstraint(Sketcher.Constraint("Vertical", 2, 2, 7, 2))
sketch14.addConstraint(Sketcher.Constraint("DistanceX", 2, 1, 2, 2, 30.0))
sketch14.addConstraint(Sketcher.Constraint("DistanceY", 1, 1, 1, 2, 40.0))
sketch14.addConstraint(Sketcher.Constraint("DistanceX", 0, 2, -1, 1, 40.0))
sketch14.addConstraint(Sketcher.Constraint("DistanceY", -1, 1, 0, 2, 5.0))
pad5 = body.newObject("PartDesign::Pad", "Pad004")
pad5.Profile = sketch14
pad5.Length = 4

# Sketch on XZ plane
sketch15 = body.newObject("Sketcher::SketchObject", "Sketch014")
sketch15.AttachmentSupport = (doc.getObject("XZ_Plane"), [""])
sketch15.MapMode = "FlatFace"
sketch15.AttachmentOffset = App.Placement(V(0, 0, -40), App.Rotation())
sketch15.addGeometry(Part.LineSegment(V(-30.5, -30.5, 0), V(-30.5, -37.5, 0)), False)
sketch15.addGeometry(Part.ArcOfCircle(Part.Circle(V(-32.5, -37.5, 0), V(0, 0, 1), 2), math.radians(180), math.radians(360)), False)
sketch15.addGeometry(Part.LineSegment(V(-34.5, -37.5, 0), V(-34.5, -30.5, 0)), False)
sketch15.addGeometry(Part.ArcOfCircle(Part.Circle(V(-32.5, -30.5, 0), V(0, 0, 1), 2), math.radians(0), math.radians(180)), False)
sketch15.addGeometry(Part.LineSegment(V(34.5, -30.5, 0), V(34.5, -37.5, 0)), False)
sketch15.addGeometry(Part.ArcOfCircle(Part.Circle(V(32.5, -37.5, 0), V(0, 0, 1), 2), math.radians(180), math.radians(360)), False)
sketch15.addGeometry(Part.LineSegment(V(30.5, -37.5, 0), V(30.5, -30.5, 0)), False)
sketch15.addGeometry(Part.ArcOfCircle(Part.Circle(V(32.5, -30.5, 0), V(0, 0, 1), 2), math.radians(0), math.radians(180)), False)
sketch15.addGeometry(Part.LineSegment(V(34.5, 36, 0), V(34.5, 29, 0)), False)
sketch15.addGeometry(Part.ArcOfCircle(Part.Circle(V(32.5, 29, 0), V(0, 0, 1), 2), math.radians(180), math.radians(360)), False)
sketch15.addGeometry(Part.LineSegment(V(30.5, 29, 0), V(30.5, 36, 0)), False)
sketch15.addGeometry(Part.ArcOfCircle(Part.Circle(V(32.5, 36, 0), V(0, 0, 1), 2), math.radians(0), math.radians(180)), False)
sketch15.addGeometry(Part.LineSegment(V(-30.5, 36, 0), V(-30.5, 29, 0)), False)
sketch15.addGeometry(Part.ArcOfCircle(Part.Circle(V(-32.5, 29, 0), V(0, 0, 1), 2), math.radians(180), math.radians(360)), False)
sketch15.addGeometry(Part.LineSegment(V(-34.5, 29, 0), V(-34.5, 36, 0)), False)
sketch15.addGeometry(Part.ArcOfCircle(Part.Circle(V(-32.5, 36, 0), V(0, 0, 1), 2), math.radians(0), math.radians(180)), False)
sketch15.addConstraint(Sketcher.Constraint("Tangent", 0, 2, 1, 2))
sketch15.addConstraint(Sketcher.Constraint("Tangent", 1, 1, 2, 1))
sketch15.addConstraint(Sketcher.Constraint("Tangent", 2, 2, 3, 2))
sketch15.addConstraint(Sketcher.Constraint("Tangent", 3, 1, 0, 1))
sketch15.addConstraint(Sketcher.Constraint("Tangent", 4, 2, 5, 2))
sketch15.addConstraint(Sketcher.Constraint("Tangent", 5, 1, 6, 1))
sketch15.addConstraint(Sketcher.Constraint("Tangent", 6, 2, 7, 2))
sketch15.addConstraint(Sketcher.Constraint("Tangent", 7, 1, 4, 1))
sketch15.addConstraint(Sketcher.Constraint("Tangent", 8, 2, 9, 2))
sketch15.addConstraint(Sketcher.Constraint("Tangent", 9, 1, 10, 1))
sketch15.addConstraint(Sketcher.Constraint("Tangent", 10, 2, 11, 2))
sketch15.addConstraint(Sketcher.Constraint("Tangent", 11, 1, 8, 1))
sketch15.addConstraint(Sketcher.Constraint("Tangent", 12, 2, 13, 2))
sketch15.addConstraint(Sketcher.Constraint("Tangent", 13, 1, 14, 1))
sketch15.addConstraint(Sketcher.Constraint("Tangent", 14, 2, 15, 2))
sketch15.addConstraint(Sketcher.Constraint("Tangent", 15, 1, 12, 1))
sketch15.addConstraint(Sketcher.Constraint("Vertical", 0))
sketch15.addConstraint(Sketcher.Constraint("Vertical", 2))
sketch15.addConstraint(Sketcher.Constraint("Vertical", 4))
sketch15.addConstraint(Sketcher.Constraint("Vertical", 6))
sketch15.addConstraint(Sketcher.Constraint("Vertical", 8))
sketch15.addConstraint(Sketcher.Constraint("Vertical", 10))
sketch15.addConstraint(Sketcher.Constraint("Vertical", 12))
sketch15.addConstraint(Sketcher.Constraint("Vertical", 14))
sketch15.addConstraint(Sketcher.Constraint("Equal", 3, 5))
sketch15.addConstraint(Sketcher.Constraint("Equal", 7, 9))
sketch15.addConstraint(Sketcher.Constraint("Equal", 11, 13))
sketch15.addConstraint(Sketcher.Constraint("Symmetric", 1, 3, 5, 3, -2))
sketch15.addConstraint(Sketcher.Constraint("Symmetric", 9, 3, 13, 3, -2))
sketch15.addConstraint(Sketcher.Constraint("Horizontal", 3, 3, 7, 3))
sketch15.addConstraint(Sketcher.Constraint("Horizontal", 11, 3, 15, 3))
sketch15.addConstraint(Sketcher.Constraint("Vertical", 7, 3, 9, 3))
sketch15.addConstraint(Sketcher.Constraint("Equal", 6, 8))
sketch15.addConstraint(Sketcher.Constraint("Radius", 1, 2.0))
sketch15.addConstraint(Sketcher.Constraint("DistanceY", 0, 2, 0, 1, 7.0))
sketch15.addConstraint(Sketcher.Constraint("DistanceY", -1, 1, 9, 3, 29.0))
sketch15.addConstraint(Sketcher.Constraint("DistanceX", 1, 3, 5, 3, 65.0))
sketch15.addConstraint(Sketcher.Constraint("DistanceY", 1, 3, -1, 1, 37.5))
pocket10 = body.newObject("PartDesign::Pocket", "Pocket009")
pocket10.Profile = sketch15
pocket10.Length = 4
pocket10.Reversed = True

# Sketch on XZ plane
sketch16 = body.newObject("Sketcher::SketchObject", "Sketch015")
sketch16.AttachmentSupport = (doc.getObject("XZ_Plane"), [""])
sketch16.MapMode = "FlatFace"
sketch16.AttachmentOffset = App.Placement(V(0, 0, -40), App.Rotation())
sketch16.addGeometry(Part.Circle(V(-32.5, -37.5, 0), V(0, 0, 1), 4), False)
sketch16.addGeometry(Part.Circle(V(32.5, -37.5, 0), V(0, 0, 1), 4), False)
sketch16.addGeometry(Part.Circle(V(32.5, 29, 0), V(0, 0, 1), 4), False)
sketch16.addGeometry(Part.Circle(V(-32.5, 29, 0), V(0, 0, 1), 4), False)
sketch16.addConstraint(Sketcher.Constraint("Equal", 0, 1))
sketch16.addConstraint(Sketcher.Constraint("Equal", 1, 2))
sketch16.addConstraint(Sketcher.Constraint("Equal", 2, 3))
sketch16.addConstraint(Sketcher.Constraint("Symmetric", 0, 3, 1, 3, -2))
sketch16.addConstraint(Sketcher.Constraint("Symmetric", 2, 3, 3, 3, -2))
sketch16.addConstraint(Sketcher.Constraint("Vertical", 1, 3, 2, 3))
sketch16.addConstraint(Sketcher.Constraint("Diameter", 0, 8.0))
sketch16.addConstraint(Sketcher.Constraint("DistanceY", -1, 1, 2, 3, 29.0))
sketch16.addConstraint(Sketcher.Constraint("DistanceX", 0, 3, 1, 3, 65.0))
sketch16.addConstraint(Sketcher.Constraint("DistanceY", 0, 3, -1, 1, 37.5))
pocket11 = body.newObject("PartDesign::Pocket", "Pocket010")
pocket11.Profile = sketch16
pocket11.Length = 4
pocket11.Reversed = True

doc.recompute()
